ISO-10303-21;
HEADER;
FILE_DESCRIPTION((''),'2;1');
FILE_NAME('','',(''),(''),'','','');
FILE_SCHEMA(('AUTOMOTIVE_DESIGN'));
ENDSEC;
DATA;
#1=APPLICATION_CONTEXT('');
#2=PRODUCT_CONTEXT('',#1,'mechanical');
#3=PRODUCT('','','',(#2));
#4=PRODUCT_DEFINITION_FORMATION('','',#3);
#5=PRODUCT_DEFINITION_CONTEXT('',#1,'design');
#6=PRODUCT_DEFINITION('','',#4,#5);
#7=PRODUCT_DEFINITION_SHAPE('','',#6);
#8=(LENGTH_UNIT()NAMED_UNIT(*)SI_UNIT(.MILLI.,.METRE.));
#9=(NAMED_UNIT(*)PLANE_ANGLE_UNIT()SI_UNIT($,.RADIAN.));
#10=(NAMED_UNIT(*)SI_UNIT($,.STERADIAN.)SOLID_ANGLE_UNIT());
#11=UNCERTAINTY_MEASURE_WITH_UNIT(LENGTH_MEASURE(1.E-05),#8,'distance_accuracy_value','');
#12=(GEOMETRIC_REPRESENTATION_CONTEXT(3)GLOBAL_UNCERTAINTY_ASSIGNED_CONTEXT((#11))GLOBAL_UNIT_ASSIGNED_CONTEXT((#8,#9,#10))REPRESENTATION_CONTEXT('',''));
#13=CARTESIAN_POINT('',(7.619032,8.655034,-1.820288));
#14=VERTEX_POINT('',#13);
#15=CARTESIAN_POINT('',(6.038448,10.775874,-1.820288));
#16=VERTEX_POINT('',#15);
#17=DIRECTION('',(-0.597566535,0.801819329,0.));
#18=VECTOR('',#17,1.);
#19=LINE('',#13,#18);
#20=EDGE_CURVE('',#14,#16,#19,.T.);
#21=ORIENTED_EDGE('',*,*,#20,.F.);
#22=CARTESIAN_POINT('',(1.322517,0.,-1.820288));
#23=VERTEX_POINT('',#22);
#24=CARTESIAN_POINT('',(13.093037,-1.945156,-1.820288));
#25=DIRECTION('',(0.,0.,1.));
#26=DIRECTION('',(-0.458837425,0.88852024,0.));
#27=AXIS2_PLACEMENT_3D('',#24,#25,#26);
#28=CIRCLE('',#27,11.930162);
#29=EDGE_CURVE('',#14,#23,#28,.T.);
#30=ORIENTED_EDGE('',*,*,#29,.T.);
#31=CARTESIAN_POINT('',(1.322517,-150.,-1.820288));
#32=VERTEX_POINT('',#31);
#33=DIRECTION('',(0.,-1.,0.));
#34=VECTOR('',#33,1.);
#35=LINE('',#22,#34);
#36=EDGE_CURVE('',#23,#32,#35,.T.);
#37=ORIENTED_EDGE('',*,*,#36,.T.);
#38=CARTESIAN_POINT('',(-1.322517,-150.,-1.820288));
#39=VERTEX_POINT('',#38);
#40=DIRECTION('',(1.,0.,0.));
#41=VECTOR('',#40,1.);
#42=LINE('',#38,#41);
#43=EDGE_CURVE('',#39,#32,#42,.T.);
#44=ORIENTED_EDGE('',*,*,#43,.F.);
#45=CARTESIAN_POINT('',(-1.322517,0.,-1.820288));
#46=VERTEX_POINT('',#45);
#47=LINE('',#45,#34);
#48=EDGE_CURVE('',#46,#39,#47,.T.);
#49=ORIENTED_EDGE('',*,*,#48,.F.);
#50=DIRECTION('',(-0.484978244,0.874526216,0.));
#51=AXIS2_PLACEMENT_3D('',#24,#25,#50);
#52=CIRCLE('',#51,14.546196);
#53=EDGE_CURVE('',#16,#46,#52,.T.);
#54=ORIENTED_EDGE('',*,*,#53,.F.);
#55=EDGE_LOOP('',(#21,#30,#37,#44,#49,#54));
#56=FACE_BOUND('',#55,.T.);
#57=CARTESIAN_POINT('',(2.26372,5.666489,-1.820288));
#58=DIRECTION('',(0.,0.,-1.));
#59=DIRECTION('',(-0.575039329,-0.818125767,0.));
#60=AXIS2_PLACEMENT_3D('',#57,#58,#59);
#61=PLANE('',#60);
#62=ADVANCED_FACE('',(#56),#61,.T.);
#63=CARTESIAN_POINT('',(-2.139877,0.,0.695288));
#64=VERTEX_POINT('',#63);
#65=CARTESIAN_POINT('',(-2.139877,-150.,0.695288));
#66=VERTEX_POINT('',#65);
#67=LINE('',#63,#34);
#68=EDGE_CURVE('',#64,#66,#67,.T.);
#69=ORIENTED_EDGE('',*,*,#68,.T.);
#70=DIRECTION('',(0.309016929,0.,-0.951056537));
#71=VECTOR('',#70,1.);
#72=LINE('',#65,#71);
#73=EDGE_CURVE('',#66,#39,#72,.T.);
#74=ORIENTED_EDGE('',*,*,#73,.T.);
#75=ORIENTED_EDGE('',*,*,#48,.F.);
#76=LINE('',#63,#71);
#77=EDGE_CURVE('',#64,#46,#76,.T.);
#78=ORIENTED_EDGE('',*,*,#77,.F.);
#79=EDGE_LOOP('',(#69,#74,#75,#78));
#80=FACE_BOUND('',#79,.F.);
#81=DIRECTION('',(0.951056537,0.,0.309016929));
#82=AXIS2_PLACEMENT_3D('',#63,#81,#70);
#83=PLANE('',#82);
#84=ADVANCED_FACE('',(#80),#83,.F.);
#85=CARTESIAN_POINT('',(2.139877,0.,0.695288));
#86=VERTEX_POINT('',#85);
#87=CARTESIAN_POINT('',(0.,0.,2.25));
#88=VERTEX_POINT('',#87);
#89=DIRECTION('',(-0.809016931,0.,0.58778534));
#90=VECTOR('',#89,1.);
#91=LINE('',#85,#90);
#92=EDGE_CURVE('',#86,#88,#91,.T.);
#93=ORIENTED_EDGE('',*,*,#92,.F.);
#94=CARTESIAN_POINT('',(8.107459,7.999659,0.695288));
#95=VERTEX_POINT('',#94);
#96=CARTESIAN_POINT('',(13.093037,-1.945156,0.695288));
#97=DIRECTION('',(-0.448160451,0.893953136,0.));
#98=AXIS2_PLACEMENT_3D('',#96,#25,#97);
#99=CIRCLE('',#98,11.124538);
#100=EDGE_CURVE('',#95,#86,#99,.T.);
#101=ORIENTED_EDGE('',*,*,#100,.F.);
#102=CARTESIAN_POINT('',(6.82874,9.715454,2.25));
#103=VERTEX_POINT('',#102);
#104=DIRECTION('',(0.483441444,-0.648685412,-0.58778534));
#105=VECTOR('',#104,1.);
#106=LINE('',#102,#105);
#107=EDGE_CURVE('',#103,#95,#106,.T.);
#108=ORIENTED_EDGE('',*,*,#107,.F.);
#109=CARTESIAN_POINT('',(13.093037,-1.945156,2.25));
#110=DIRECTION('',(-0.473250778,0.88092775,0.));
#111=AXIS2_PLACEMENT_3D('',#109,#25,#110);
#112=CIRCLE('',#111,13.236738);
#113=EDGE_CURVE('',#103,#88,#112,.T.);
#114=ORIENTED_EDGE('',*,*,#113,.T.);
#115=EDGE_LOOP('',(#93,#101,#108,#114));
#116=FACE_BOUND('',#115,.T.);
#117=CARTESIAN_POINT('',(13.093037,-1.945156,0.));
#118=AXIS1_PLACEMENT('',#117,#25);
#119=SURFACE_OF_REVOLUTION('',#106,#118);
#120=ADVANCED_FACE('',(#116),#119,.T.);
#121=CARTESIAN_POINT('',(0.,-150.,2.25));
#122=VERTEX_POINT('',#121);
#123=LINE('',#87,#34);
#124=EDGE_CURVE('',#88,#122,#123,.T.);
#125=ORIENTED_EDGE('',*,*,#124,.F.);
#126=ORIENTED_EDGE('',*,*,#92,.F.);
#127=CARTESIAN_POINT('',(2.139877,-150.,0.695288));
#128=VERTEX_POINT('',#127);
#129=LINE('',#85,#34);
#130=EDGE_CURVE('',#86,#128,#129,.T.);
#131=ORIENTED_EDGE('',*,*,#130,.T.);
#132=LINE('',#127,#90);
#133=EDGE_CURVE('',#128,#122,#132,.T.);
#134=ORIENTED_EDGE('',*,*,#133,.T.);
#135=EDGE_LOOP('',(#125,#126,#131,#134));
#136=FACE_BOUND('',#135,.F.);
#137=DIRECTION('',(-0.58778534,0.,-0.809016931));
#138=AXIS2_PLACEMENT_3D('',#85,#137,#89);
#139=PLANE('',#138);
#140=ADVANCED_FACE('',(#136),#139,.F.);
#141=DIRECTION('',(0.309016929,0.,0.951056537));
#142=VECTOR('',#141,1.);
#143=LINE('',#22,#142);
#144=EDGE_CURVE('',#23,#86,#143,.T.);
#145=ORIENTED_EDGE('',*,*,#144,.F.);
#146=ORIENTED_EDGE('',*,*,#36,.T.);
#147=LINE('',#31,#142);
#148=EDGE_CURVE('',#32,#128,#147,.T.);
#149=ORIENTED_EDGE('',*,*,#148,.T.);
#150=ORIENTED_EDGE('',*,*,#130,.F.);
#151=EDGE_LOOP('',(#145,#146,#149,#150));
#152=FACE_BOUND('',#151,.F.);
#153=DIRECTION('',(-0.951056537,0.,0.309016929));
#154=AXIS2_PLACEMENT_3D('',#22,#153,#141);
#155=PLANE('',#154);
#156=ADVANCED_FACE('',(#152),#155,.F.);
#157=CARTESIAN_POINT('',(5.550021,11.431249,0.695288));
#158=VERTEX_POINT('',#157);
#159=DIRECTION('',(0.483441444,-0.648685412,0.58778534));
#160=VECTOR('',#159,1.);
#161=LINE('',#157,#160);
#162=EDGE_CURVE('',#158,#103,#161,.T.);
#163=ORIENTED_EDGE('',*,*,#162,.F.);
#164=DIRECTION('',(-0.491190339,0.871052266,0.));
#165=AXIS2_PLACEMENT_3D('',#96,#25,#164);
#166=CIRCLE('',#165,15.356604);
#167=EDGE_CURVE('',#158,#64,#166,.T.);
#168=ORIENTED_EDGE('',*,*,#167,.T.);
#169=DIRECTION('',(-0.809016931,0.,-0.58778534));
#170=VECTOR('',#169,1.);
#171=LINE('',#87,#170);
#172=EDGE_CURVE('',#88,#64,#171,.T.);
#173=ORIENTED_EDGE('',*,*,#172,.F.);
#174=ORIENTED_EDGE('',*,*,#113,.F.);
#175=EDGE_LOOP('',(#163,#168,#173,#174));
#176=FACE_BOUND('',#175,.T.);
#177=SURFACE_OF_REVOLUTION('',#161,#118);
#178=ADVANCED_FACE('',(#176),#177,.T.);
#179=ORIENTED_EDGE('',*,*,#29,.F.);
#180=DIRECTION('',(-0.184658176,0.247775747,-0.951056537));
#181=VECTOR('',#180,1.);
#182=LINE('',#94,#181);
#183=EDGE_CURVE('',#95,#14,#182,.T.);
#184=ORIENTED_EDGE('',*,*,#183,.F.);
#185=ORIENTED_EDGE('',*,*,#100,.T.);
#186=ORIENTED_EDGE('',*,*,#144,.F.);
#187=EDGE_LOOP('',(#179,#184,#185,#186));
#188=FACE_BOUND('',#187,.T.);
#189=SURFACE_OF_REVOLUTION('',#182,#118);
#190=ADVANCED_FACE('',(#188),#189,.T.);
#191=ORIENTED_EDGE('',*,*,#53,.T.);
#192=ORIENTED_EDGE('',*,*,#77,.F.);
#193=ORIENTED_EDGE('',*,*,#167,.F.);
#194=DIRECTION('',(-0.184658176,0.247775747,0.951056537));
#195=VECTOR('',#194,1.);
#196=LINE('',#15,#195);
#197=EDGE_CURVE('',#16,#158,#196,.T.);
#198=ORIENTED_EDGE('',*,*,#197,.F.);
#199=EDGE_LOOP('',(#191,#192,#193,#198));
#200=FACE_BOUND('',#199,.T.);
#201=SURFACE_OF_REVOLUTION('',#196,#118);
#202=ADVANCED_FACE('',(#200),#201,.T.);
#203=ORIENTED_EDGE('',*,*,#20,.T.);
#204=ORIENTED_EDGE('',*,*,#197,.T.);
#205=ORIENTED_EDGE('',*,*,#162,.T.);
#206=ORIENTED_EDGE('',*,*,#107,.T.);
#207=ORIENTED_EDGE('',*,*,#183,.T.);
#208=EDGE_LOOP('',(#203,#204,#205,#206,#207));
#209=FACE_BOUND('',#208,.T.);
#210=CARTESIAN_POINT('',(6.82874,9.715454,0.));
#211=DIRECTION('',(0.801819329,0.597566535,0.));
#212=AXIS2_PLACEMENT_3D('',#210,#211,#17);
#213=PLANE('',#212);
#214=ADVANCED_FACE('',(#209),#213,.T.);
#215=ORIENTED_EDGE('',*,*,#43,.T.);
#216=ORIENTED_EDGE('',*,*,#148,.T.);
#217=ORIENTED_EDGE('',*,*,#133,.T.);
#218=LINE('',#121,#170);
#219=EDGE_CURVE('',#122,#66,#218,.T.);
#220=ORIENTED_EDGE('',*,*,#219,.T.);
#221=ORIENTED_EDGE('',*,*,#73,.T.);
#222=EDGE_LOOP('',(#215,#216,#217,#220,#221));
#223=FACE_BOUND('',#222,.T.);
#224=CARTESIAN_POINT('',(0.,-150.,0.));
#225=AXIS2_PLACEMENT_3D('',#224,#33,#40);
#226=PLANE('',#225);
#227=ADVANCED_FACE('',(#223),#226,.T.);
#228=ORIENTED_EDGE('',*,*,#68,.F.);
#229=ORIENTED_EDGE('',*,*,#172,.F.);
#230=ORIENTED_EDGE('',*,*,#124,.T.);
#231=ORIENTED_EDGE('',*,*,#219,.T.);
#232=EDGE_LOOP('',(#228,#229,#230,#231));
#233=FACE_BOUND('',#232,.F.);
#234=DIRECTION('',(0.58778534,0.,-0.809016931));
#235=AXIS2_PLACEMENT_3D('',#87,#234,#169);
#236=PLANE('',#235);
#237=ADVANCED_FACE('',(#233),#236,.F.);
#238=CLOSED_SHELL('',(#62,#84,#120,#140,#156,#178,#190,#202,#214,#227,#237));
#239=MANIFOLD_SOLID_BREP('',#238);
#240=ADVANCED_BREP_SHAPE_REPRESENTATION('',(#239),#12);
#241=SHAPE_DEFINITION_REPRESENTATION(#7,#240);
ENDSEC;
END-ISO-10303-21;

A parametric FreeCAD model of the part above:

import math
import FreeCAD as App
import Part
import Sketcher

V = App.Vector
Q = App.Units.Quantity


def add_polygon(sketch, points):
    """Adds a closed chain of lines whose ends are joined by coincident constraints."""
    first, n = sketch.GeometryCount, len(points)
    for a, b in zip(points, points[1:] + points[:1]):
        sketch.addGeometry(Part.LineSegment(App.Vector(*a, 0), App.Vector(*b, 0)), False)
    for i in range(n):
        sketch.addConstraint(Sketcher.Constraint("Coincident", first + i, 2, first + (i + 1) % n, 1))

doc = App.newDocument("Part")
body = doc.addObject("PartDesign::Body", "Body")

# Sketch on XZ plane
sketch1 = doc.addObject("Sketcher::SketchObject", "Sketch")
body.addObject(sketch1)
sketch1.AttachmentSupport = (doc.XZ_Plane, [""])
sketch1.MapMode = "FlatFace"
add_polygon(sketch1, [(2.1, 0.7), (0, 2.2), (-2.1, 0.7), (-1.3, -1.8), (1.3, -1.8)])  # lines 0-4
sketch1.addConstraint(Sketcher.Constraint("Horizontal", 3))
sketch1.addConstraint(Sketcher.Constraint("Symmetric", 1, 2, 4, 2, -2))
sketch1.addConstraint(Sketcher.Constraint("PointOnObject", 0, 2, -2))
sketch1.addConstraint(Sketcher.Constraint("Equal", 1, 2))
sketch1.addConstraint(Sketcher.Constraint("Equal", 2, 4))
sketch1.addConstraint(Sketcher.Constraint("Angle", 0, Q("143.999994 deg")))
sketch1.addConstraint(Sketcher.Constraint("Angle", 2, Q("-72.000004 deg")))
sketch1.addConstraint(Sketcher.Constraint("DistanceY", -1, 1, 0, 2, Q("2.25 mm")))
sketch1.addConstraint(Sketcher.Constraint("DistanceX", 3, 1, 3, 2, Q("2.645034 mm")))
pad1 = doc.addObject("PartDesign::Pad", "Pad")
body.addObject(pad1)
pad1.Profile = sketch1
pad1.Length = 150

# Sketch on XZ plane
sketch2 = doc.addObject("Sketcher::SketchObject", "Sketch001")
body.addObject(sketch2)
sketch2.AttachmentSupport = (doc.XZ_Plane, [""])
sketch2.MapMode = "FlatFace"
add_polygon(sketch2, [(0, 2.2), (2.1, 0.7), (1.3, -1.8), (-1.3, -1.8), (-2.1, 0.7)])  # lines 0-4
sketch2.addConstraint(Sketcher.Constraint("Horizontal", 2))
sketch2.addConstraint(Sketcher.Constraint("Symmetric", 0, 2, 3, 2, -2))
sketch2.addConstraint(Sketcher.Constraint("PointOnObject", 4, 2, -2))
sketch2.addConstraint(Sketcher.Constraint("Equal", 0, 1))
sketch2.addConstraint(Sketcher.Constraint("Equal", 1, 3))
sketch2.addConstraint(Sketcher.Constraint("Angle", 0, Q("-36.000006 deg")))
sketch2.addConstraint(Sketcher.Constraint("Angle", 1, Q("-107.999996 deg")))
sketch2.addConstraint(Sketcher.Constraint("DistanceY", -1, 1, 4, 2, Q("2.25 mm")))
sketch2.addConstraint(Sketcher.Constraint("DistanceX", 2, 2, 2, 1, Q("2.645034 mm")))

# Sketch on XY plane
sketch3 = doc.addObject("Sketcher::SketchObject", "Sketch002")
body.addObject(sketch3)
sketch3.AttachmentSupport = (doc.XY_Plane, [""])
sketch3.MapMode = "FlatFace"
sketch3.addGeometry(Part.ArcOfCircle(Part.Circle(V(13, -2, 0), V(0, 0, 1), 13), math.radians(118), math.radians(172)), False)
sketch3.addConstraint(Sketcher.Constraint("Coincident", 0, 2, -1, 1))
sketch3.addConstraint(Sketcher.Constraint("Radius", 0, Q("13.236738 mm")))
sketch3.addConstraint(Sketcher.Constraint("DistanceX", -1, 1, 0, 1, Q("6.82874 mm")))
sketch3.addConstraint(Sketcher.Constraint("DistanceY", 0, 3, 0, 1, Q("11.66061 mm")))
doc.recompute()

additivepipe = doc.addObject("PartDesign::AdditivePipe", "AdditivePipe")
body.addObject(additivepipe)
additivepipe.Profile = sketch2
additivepipe.Spine = (sketch3, ["Edge1"])

doc.recompute()
